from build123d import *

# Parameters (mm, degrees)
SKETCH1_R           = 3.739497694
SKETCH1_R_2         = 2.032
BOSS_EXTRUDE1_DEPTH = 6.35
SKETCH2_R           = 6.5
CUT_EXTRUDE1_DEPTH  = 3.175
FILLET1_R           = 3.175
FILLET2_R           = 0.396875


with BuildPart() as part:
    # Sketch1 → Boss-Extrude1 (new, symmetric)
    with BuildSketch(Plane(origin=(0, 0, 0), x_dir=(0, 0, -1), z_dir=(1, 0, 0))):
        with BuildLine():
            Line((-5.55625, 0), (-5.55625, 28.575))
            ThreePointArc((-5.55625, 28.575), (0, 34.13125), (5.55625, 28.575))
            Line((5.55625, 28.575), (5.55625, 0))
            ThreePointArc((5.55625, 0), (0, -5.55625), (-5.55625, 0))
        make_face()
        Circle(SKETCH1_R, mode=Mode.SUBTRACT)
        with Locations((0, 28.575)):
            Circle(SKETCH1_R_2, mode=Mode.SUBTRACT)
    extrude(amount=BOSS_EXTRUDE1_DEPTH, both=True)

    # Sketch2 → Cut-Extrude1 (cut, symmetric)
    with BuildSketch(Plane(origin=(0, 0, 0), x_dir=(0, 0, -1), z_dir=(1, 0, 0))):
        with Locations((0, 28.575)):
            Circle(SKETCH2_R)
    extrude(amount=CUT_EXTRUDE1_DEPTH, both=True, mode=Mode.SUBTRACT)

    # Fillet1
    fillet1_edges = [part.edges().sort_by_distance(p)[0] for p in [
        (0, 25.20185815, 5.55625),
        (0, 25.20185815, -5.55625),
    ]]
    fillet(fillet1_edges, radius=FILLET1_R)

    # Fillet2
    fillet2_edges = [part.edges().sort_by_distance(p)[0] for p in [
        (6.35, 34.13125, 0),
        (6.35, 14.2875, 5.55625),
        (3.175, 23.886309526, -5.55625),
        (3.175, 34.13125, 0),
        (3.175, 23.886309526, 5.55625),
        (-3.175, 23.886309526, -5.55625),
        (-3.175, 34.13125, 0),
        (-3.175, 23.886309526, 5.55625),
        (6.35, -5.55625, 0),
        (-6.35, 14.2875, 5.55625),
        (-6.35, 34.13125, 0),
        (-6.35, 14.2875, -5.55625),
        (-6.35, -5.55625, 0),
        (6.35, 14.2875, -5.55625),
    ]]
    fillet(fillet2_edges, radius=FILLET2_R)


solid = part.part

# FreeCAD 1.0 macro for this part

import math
import FreeCAD as App
import Part
import Sketcher

V = App.Vector
Q = App.Units.Quantity


def edges_at(feature, points):
    """Names of the edges that pass closest to the given points."""
    edges = feature.Shape.Edges
    near = lambda p: min(range(len(edges)), key=lambda i: edges[i].distToShape(Part.Vertex(*p))[0])
    return sorted({f"Edge{near(p) + 1}" for p in points})

doc = App.newDocument("Part")
body = doc.addObject("PartDesign::Body", "Body")

sketch1 = doc.addObject("Sketcher::SketchObject", "Sketch")
body.addObject(sketch1)
sketch1.AttachmentSupport = (doc.YZ_Plane, [""])
sketch1.MapMode = "FlatFace"
sketch1.addGeometry([
    Part.LineSegment(V(28.6, 5.6, 0), V(0, 5.6, 0)),
    Part.ArcOfCircle(Part.Circle(V(0, 0, 0), V(0, 0, 1), 5.6), math.radians(90), math.radians(270)),
    Part.LineSegment(V(0, -5.6, 0), V(28.6, -5.6, 0)),
    Part.ArcOfCircle(Part.Circle(V(28.6, 0, 0), V(0, 0, 1), 5.6), math.radians(-90), math.radians(90)),
    Part.Circle(V(0, 0, 0), V(0, 0, 1), 3.7),
    Part.Circle(V(28.6, 0, 0), V(0, 0, 1), 2),
], False)
sketch1.addConstraint([
    Sketcher.Constraint("Tangent", 0, 2, 1, 1),
    Sketcher.Constraint("Tangent", 1, 2, 2, 1),
    Sketcher.Constraint("Tangent", 2, 2, 3, 1),
    Sketcher.Constraint("Tangent", 3, 2, 0, 1),
    Sketcher.Constraint("Horizontal", 0),
    Sketcher.Constraint("Horizontal", 2),
    Sketcher.Constraint("Coincident", 1, 3, -1, 1),
    Sketcher.Constraint("Coincident", 4, 3, -1, 1),
    Sketcher.Constraint("Coincident", 5, 3, 3, 3),
    Sketcher.Constraint("Diameter", 5, Q("0.16 in")),
    Sketcher.Constraint("Radius", 1, Q("0.21875 in")),
    Sketcher.Constraint("DistanceX", 0, 2, 0, 1, Q("1.125 in")),
    Sketcher.Constraint("Diameter", 4, Q("7.478995 mm")),
])
pad1 = doc.addObject("PartDesign::Pad", "Pad")
body.addObject(pad1)
pad1.Profile = sketch1
pad1.Length = Q("0.5 in")
pad1.Midplane = True

sketch2 = doc.addObject("Sketcher::SketchObject", "Sketch001")
body.addObject(sketch2)
sketch2.AttachmentSupport = (doc.YZ_Plane, [""])
sketch2.MapMode = "FlatFace"
sketch2.addGeometry(Part.Circle(V(29, 0, 0), V(0, 0, 1), 6), False)
sketch2.addConstraint([
    Sketcher.Constraint("PointOnObject", 0, 3, -1),
    Sketcher.Constraint("Diameter", 0, Q("13 mm")),
    Sketcher.Constraint("DistanceX", -1, 1, 0, 3, Q("1.125 in")),
])
pocket1 = doc.addObject("PartDesign::Pocket", "Pocket")
body.addObject(pocket1)
pocket1.Profile = sketch2
pocket1.Length = Q("0.25 in")
pocket1.Midplane = True
doc.recompute()

fillet = doc.addObject("PartDesign::Fillet", "Fillet")
body.addObject(fillet)
fillet.Base = (pocket1, edges_at(pocket1, [(0, 25.202, 5.556), (0, 25.202, -5.556)]))
fillet.Radius = Q("0.125 in")
doc.recompute()

fillet2 = doc.addObject("PartDesign::Fillet", "Fillet001")
body.addObject(fillet2)
fillet2.Base = (fillet, edges_at(fillet, [
    (6.35, 34.131, 0),
    (6.35, 14.287, 5.556),
    (3.175, 23.886, -5.556),
    (3.175, 34.131, 0),
    (3.175, 23.886, 5.556),
    (-3.175, 23.886, -5.556),
    (-3.175, 34.131, 0),
    (-3.175, 23.886, 5.556),
    (6.35, -5.556, 0),
    (-6.35, 14.287, 5.556),
    (-6.35, 34.131, 0),
    (-6.35, 14.287, -5.556),
    (-6.35, -5.556, 0),
    (6.35, 14.287, -5.556),
]))
fillet2.Radius = Q("0.015625 in")

doc.recompute()
